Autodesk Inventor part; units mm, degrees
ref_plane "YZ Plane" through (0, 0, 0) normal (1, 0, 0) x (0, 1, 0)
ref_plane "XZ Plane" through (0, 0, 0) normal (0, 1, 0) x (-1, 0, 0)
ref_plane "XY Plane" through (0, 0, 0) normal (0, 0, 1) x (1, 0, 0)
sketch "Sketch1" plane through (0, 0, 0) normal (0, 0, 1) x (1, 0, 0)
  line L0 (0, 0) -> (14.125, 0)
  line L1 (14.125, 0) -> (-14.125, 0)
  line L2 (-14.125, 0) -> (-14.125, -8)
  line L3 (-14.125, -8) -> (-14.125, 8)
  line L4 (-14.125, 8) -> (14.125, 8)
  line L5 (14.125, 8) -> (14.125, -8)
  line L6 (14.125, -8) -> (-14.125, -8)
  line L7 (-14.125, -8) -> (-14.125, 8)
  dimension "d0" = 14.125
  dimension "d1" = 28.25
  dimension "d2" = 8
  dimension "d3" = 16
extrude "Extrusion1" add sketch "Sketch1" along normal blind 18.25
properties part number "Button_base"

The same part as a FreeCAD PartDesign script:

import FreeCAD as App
import Part
import Sketcher


def add_polygon(sketch, points):
    """Adds a closed chain of lines whose ends are joined by coincident constraints."""
    first, n = sketch.GeometryCount, len(points)
    for a, b in zip(points, points[1:] + points[:1]):
        sketch.addGeometry(Part.LineSegment(App.Vector(*a, 0), App.Vector(*b, 0)), False)
    for i in range(n):
        sketch.addConstraint(Sketcher.Constraint("Coincident", first + i, 2, first + (i + 1) % n, 1))

doc = App.newDocument("Part")
body = doc.addObject("PartDesign::Body", "Body")

# Sketch on XY plane
sketch1 = body.newObject("Sketcher::SketchObject", "Sketch")
sketch1.AttachmentSupport = (doc.getObject("XY_Plane"), [""])
sketch1.MapMode = "FlatFace"
add_polygon(sketch1, [(-14, 8), (-14, -8), (14, -8), (14, 8)])  # lines 0-3
sketch1.addConstraint([
    Sketcher.Constraint("Vertical", 0),
    Sketcher.Constraint("Horizontal", 1),
    Sketcher.Constraint("Vertical", 2),
    Sketcher.Constraint("Horizontal", 3),
    Sketcher.Constraint("Symmetric", 0, 2, 2, 2, -1, 1),
    Sketcher.Constraint("DistanceY", 0, 2, 0, 1, 16.0),
    Sketcher.Constraint("DistanceX", 1, 1, 1, 2, 28.25),
])
pad1 = body.newObject("PartDesign::Pad", "Pad")
pad1.Profile = sketch1
pad1.Length = 18.25

doc.recompute()
